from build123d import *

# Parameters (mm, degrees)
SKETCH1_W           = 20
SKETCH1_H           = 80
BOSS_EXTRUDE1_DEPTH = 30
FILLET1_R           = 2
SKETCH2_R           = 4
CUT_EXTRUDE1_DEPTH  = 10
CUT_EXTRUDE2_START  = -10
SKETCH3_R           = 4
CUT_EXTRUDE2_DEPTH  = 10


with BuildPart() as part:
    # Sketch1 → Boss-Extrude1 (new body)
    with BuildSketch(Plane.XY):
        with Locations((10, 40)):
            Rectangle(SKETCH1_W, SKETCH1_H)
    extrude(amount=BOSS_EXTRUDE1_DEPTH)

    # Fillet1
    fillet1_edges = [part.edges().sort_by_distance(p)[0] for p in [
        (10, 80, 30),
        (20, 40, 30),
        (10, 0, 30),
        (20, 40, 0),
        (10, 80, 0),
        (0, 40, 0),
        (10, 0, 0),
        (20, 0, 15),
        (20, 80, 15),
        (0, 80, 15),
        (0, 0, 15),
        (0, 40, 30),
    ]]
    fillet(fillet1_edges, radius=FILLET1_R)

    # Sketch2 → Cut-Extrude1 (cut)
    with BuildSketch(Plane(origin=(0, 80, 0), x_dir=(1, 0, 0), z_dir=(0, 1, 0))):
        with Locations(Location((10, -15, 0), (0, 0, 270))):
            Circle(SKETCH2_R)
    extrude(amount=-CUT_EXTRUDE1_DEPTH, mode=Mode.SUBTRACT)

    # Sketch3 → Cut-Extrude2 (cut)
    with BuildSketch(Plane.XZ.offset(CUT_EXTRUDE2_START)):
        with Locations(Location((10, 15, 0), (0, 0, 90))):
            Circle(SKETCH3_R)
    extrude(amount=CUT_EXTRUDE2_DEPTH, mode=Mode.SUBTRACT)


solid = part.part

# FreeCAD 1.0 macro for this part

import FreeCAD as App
import Part
import Sketcher

V = App.Vector
Q = App.Units.Quantity


def add_polygon(sketch, points):
    """Adds a closed chain of lines whose ends are joined by coincident constraints."""
    first, n = sketch.GeometryCount, len(points)
    for a, b in zip(points, points[1:] + points[:1]):
        sketch.addGeometry(Part.LineSegment(App.Vector(*a, 0), App.Vector(*b, 0)), False)
    for i in range(n):
        sketch.addConstraint(Sketcher.Constraint("Coincident", first + i, 2, first + (i + 1) % n, 1))

doc = App.newDocument("Part")
body = doc.addObject("PartDesign::Body", "Body")

# Sketch on XY plane
sketch1 = body.newObject("Sketcher::SketchObject", "Sketch")
sketch1.AttachmentSupport = (doc.getObject("XY_Plane"), [""])
sketch1.MapMode = "FlatFace"
add_polygon(sketch1, [(0, 80), (0, 0), (20, 0), (20, 80)])  # lines 0-3
sketch1.addConstraint([
    Sketcher.Constraint("Vertical", 0),
    Sketcher.Constraint("Horizontal", 1),
    Sketcher.Constraint("Vertical", 2),
    Sketcher.Constraint("Horizontal", 3),
    Sketcher.Constraint("Coincident", 0, 2, -1, 1),
    Sketcher.Constraint("DistanceX", 1, 1, 1, 2, Q("20 mm")),
    Sketcher.Constraint("DistanceY", 0, 2, 0, 1, Q("80 mm")),
])
pad1 = body.newObject("PartDesign::Pad", "Pad")
pad1.Profile = sketch1
pad1.Length = 30
doc.recompute()

fillet = body.newObject("PartDesign::Fillet", "Fillet")
fillet.Base = (pad1, ["Edge1"])
fillet.UseAllEdges = True
fillet.Radius = 2

# Sketch on XZ plane
sketch2 = body.newObject("Sketcher::SketchObject", "Sketch001")
sketch2.AttachmentSupport = (doc.getObject("XZ_Plane"), [""])
sketch2.MapMode = "FlatFace"
sketch2.AttachmentOffset = App.Placement(V(0, 0, -80), App.Rotation())
sketch2.addGeometry(Part.Circle(V(10, 15, 0), V(0, 0, 1), 4), False)
sketch2.addConstraint([
    Sketcher.Constraint("Diameter", 0, Q("8 mm")),
    Sketcher.Constraint("DistanceX", -1, 1, 0, 3, Q("10 mm")),
    Sketcher.Constraint("DistanceY", -1, 1, 0, 3, Q("15 mm")),
])
pocket1 = body.newObject("PartDesign::Pocket", "Pocket")
pocket1.Profile = sketch2
pocket1.Length = 10
pocket1.Reversed = True

# Sketch on XZ plane
sketch3 = body.newObject("Sketcher::SketchObject", "Sketch002")
sketch3.AttachmentSupport = (doc.getObject("XZ_Plane"), [""])
sketch3.MapMode = "FlatFace"
sketch3.AttachmentOffset = App.Placement(V(0, 0, -10), App.Rotation())
sketch3.addGeometry(Part.Circle(V(10, 15, 0), V(0, 0, 1), 4), False)
sketch3.addConstraint([
    Sketcher.Constraint("Diameter", 0, Q("8 mm")),
    Sketcher.Constraint("DistanceX", -1, 1, 0, 3, Q("10 mm")),
    Sketcher.Constraint("DistanceY", -1, 1, 0, 3, Q("15 mm")),
])
pocket2 = body.newObject("PartDesign::Pocket", "Pocket001")
pocket2.Profile = sketch3
pocket2.Length = 10
pocket2.Reversed = True

doc.recompute()
